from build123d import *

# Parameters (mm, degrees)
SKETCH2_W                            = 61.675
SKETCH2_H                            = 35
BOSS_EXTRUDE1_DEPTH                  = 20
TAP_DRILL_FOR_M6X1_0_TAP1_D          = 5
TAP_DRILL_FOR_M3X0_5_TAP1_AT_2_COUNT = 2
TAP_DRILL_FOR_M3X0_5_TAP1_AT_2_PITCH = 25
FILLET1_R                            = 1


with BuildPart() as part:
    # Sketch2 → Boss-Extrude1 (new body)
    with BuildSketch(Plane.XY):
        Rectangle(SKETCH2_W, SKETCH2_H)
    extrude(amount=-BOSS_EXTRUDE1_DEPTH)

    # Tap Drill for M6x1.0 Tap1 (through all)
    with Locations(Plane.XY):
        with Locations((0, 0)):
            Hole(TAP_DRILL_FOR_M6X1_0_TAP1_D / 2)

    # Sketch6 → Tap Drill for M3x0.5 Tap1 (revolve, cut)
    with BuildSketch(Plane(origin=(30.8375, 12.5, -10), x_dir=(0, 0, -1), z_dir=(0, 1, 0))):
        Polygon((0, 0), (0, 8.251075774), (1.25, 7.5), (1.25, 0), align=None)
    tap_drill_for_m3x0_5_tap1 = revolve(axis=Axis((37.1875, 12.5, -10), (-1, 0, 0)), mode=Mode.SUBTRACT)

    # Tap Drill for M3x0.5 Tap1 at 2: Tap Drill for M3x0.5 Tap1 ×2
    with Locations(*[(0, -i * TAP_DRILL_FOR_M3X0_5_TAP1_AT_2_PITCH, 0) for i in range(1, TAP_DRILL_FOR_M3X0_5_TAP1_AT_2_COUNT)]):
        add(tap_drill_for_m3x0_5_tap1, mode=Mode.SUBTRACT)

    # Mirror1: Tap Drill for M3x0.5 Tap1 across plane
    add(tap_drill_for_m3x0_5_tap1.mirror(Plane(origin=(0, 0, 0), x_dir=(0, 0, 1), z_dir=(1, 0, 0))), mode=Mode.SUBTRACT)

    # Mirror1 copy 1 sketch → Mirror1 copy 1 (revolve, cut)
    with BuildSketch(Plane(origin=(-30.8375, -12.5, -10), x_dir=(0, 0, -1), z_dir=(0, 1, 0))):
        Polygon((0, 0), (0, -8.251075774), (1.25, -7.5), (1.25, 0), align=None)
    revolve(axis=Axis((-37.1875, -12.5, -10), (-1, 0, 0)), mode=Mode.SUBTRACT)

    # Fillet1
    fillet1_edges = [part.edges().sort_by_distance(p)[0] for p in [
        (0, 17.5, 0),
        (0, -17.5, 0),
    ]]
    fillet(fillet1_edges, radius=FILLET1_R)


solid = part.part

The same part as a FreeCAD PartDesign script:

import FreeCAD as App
import Part
import Sketcher

V = App.Vector
Q = App.Units.Quantity


def edges_at(feature, points):
    """Names of the edges that pass closest to the given points."""
    edges = feature.Shape.Edges
    near = lambda p: min(range(len(edges)), key=lambda i: edges[i].distToShape(Part.Vertex(*p))[0])
    return sorted({f"Edge{near(p) + 1}" for p in points})


def add_polygon(sketch, points):
    """Adds a closed chain of lines whose ends are joined by coincident constraints."""
    first, n = sketch.GeometryCount, len(points)
    for a, b in zip(points, points[1:] + points[:1]):
        sketch.addGeometry(Part.LineSegment(App.Vector(*a, 0), App.Vector(*b, 0)), False)
    for i in range(n):
        sketch.addConstraint(Sketcher.Constraint("Coincident", first + i, 2, first + (i + 1) % n, 1))

doc = App.newDocument("Part")
body = doc.addObject("PartDesign::Body", "Body")

# Sketch on XY plane
sketch1 = body.newObject("Sketcher::SketchObject", "Sketch")
sketch1.AttachmentSupport = (doc.getObject("XY_Plane"), [""])
sketch1.MapMode = "FlatFace"
add_polygon(sketch1, [(-30.8375, 17.5), (-30.8375, -17.5), (30.8375, -17.5), (30.8375, 17.5)])  # lines 0-3
sketch1.addConstraint(Sketcher.Constraint("Vertical", 0))
sketch1.addConstraint(Sketcher.Constraint("Horizontal", 1))
sketch1.addConstraint(Sketcher.Constraint("Vertical", 2))
sketch1.addConstraint(Sketcher.Constraint("Horizontal", 3))
sketch1.addConstraint(Sketcher.Constraint("Symmetric", 0, 2, 2, 2, -1, 1))
sketch1.addConstraint(Sketcher.Constraint("DistanceY", 0, 2, 0, 1, 35.0))
sketch1.addConstraint(Sketcher.Constraint("DistanceX", 1, 1, 1, 2, 61.675))
pad1 = body.newObject("PartDesign::Pad", "Pad")
pad1.Profile = sketch1
pad1.Length = 20
pad1.Reversed = True

# Sketch on XY plane
sketch2 = body.newObject("Sketcher::SketchObject", "Sketch001")
sketch2.AttachmentSupport = (doc.getObject("XY_Plane"), [""])
sketch2.MapMode = "FlatFace"
sketch2.addGeometry(Part.Circle(V(0, 0, 0), V(0, 0, 1), 2.5), False)
sketch2.addConstraint(Sketcher.Constraint("Coincident", 0, 3, -1, 1))
sketch2.addConstraint(Sketcher.Constraint("Diameter", 0, 5.0))
doc.recompute()
hole = body.newObject("PartDesign::Hole", "Hole")
hole.Profile = sketch2
hole.ThreadType = "None"
hole.Diameter = 5
hole.DepthType = "ThroughAll"

# Sketch on XZ plane
sketch3 = body.newObject("Sketcher::SketchObject", "Sketch002")
sketch3.AttachmentSupport = (doc.getObject("XZ_Plane"), [""])
sketch3.MapMode = "FlatFace"
sketch3.AttachmentOffset = App.Placement(V(0, 0, -12.5), App.Rotation())
add_polygon(sketch3, [(22.586424, -10), (30.8375, -10), (30.8375, -11.25), (23.3375, -11.25)])  # lines 0-3
sketch3.addGeometry(Part.LineSegment(V(30.8375, -10, 0), V(22.586424, -10, 0)), True)  # axis
sketch3.addConstraint(Sketcher.Constraint("Horizontal", 0))
sketch3.addConstraint(Sketcher.Constraint("Vertical", 1))
sketch3.addConstraint(Sketcher.Constraint("Horizontal", 2))
sketch3.addConstraint(Sketcher.Constraint("Horizontal", 4))
sketch3.addConstraint(Sketcher.Constraint("Coincident", 4, 1, 0, 2))
sketch3.addConstraint(Sketcher.Constraint("Equal", 0, 4))
sketch3.addConstraint(Sketcher.Constraint("Angle", 3, Q("121 deg")))
sketch3.addConstraint(Sketcher.Constraint("DistanceX", 2, 2, 2, 1, 7.5))
sketch3.addConstraint(Sketcher.Constraint("DistanceY", 0, 2, -1, 1, 10.0))
sketch3.addConstraint(Sketcher.Constraint("DistanceY", 1, 2, 1, 1, 1.25))
sketch3.addConstraint(Sketcher.Constraint("DistanceX", -1, 1, 0, 2, 30.8375))
groove = body.newObject("PartDesign::Groove", "Groove")
groove.Profile = sketch3
groove.ReferenceAxis = (sketch3, ["Axis0"])
groove.Angle = 360
doc.recompute()

linearpattern = body.newObject("PartDesign::LinearPattern", "LinearPattern")
linearpattern.Originals = [groove]
linearpattern.Direction = (doc.getObject("Y_Axis"), [""])
linearpattern.Mode = "offset"
linearpattern.Offset = 25
linearpattern.Occurrences = 2
linearpattern.Reversed = True
body.Tip = linearpattern
doc.recompute()

mirrored = body.newObject("PartDesign::Mirrored", "Mirrored")
mirrored.Originals = [groove]
mirrored.MirrorPlane = (doc.getObject("YZ_Plane"), [""])
body.Tip = mirrored

# Sketch on XZ plane
sketch4 = body.newObject("Sketcher::SketchObject", "Sketch003")
sketch4.AttachmentSupport = (doc.getObject("XZ_Plane"), [""])
sketch4.MapMode = "FlatFace"
sketch4.AttachmentOffset = App.Placement(V(0, 0, 12.5), App.Rotation())
add_polygon(sketch4, [(-30.8375, -10), (-22.586424, -10), (-23.3375, -11.25), (-30.8375, -11.25)])  # lines 0-3
sketch4.addGeometry(Part.LineSegment(V(-22.586424, -10, 0), V(-30.8375, -10, 0)), True)  # axis
sketch4.addConstraint(Sketcher.Constraint("Horizontal", 0))
sketch4.addConstraint(Sketcher.Constraint("Horizontal", 2))
sketch4.addConstraint(Sketcher.Constraint("Vertical", 3))
sketch4.addConstraint(Sketcher.Constraint("Horizontal", 4))
sketch4.addConstraint(Sketcher.Constraint("Coincident", 4, 1, 0, 2))
sketch4.addConstraint(Sketcher.Constraint("Vertical", 2, 2, 4, 2))
sketch4.addConstraint(Sketcher.Constraint("Angle", 1, Q("-121 deg")))
sketch4.addConstraint(Sketcher.Constraint("DistanceX", 2, 2, 2, 1, 7.5))
sketch4.addConstraint(Sketcher.Constraint("DistanceY", 0, 2, -1, 1, 10.0))
sketch4.addConstraint(Sketcher.Constraint("DistanceY", 3, 1, 3, 2, 1.25))
sketch4.addConstraint(Sketcher.Constraint("DistanceX", 1, 2, -1, 1, 23.3375))
groove2 = body.newObject("PartDesign::Groove", "Groove001")
groove2.Profile = sketch4
groove2.ReferenceAxis = (sketch4, ["Axis0"])
groove2.Angle = 360
doc.recompute()

fillet = body.newObject("PartDesign::Fillet", "Fillet")
fillet.Base = (groove2, edges_at(groove2, [(0, 17.5, 0), (0, -17.5, 0)]))
fillet.Radius = 1

doc.recompute()
